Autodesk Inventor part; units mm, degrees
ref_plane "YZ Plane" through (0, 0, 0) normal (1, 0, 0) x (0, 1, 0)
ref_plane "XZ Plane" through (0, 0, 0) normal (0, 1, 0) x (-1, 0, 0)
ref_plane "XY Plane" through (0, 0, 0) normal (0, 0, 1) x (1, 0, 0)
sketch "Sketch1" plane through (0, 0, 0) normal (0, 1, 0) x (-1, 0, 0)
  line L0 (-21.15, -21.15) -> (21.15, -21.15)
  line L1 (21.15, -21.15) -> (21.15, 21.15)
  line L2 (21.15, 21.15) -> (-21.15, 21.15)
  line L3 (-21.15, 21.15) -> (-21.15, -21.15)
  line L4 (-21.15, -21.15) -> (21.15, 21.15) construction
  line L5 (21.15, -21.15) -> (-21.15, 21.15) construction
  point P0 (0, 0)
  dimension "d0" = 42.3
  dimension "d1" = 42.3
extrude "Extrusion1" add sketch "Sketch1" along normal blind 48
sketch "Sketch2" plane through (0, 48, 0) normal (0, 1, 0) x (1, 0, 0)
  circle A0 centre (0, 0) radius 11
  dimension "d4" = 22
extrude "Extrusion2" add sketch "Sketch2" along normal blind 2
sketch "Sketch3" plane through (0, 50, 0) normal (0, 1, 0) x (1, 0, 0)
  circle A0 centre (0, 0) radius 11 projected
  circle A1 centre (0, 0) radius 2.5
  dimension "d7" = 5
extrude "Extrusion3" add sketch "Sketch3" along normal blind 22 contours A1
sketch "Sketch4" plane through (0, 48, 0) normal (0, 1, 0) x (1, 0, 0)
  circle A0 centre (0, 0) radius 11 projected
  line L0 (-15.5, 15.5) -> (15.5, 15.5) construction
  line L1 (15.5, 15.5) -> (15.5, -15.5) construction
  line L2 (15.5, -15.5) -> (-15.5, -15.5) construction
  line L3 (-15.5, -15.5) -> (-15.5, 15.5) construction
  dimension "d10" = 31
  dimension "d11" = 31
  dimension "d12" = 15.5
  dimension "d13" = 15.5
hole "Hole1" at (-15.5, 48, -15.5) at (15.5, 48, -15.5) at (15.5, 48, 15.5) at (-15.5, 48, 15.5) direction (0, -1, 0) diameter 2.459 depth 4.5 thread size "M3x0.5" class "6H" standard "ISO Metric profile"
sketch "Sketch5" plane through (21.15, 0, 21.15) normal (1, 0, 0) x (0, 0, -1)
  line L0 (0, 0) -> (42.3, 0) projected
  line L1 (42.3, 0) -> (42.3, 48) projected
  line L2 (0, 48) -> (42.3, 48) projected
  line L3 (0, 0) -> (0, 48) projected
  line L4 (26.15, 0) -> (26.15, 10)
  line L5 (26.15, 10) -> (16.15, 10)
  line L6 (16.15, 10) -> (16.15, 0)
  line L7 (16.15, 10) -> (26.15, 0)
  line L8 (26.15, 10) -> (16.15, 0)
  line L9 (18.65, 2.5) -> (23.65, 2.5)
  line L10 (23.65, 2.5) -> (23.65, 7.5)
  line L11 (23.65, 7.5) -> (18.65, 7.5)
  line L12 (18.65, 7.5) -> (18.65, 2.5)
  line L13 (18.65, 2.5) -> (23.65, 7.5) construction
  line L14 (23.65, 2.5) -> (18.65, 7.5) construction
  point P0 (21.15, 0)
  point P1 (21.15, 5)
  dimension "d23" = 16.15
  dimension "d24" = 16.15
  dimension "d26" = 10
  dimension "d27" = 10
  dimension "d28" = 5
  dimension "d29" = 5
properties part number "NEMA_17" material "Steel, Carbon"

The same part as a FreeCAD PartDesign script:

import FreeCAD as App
import Part
import Sketcher
from FreeCAD import Vector

doc = App.newDocument("Part")
body = doc.addObject("PartDesign::Body", "Body")

# Sketch on XZ plane
sketch1 = body.newObject("Sketcher::SketchObject", "Sketch")
sketch1.AttachmentSupport = (doc.getObject("XZ_Plane"), [""])
sketch1.MapMode = "FlatFace"
sketch1.addGeometry([
    Part.LineSegment(Vector(21, 21, 0), Vector(21, -21, 0)),
    Part.LineSegment(Vector(21, -21, 0), Vector(-21, -21, 0)),
    Part.LineSegment(Vector(-21, -21, 0), Vector(-21, 21, 0)),
    Part.LineSegment(Vector(-21, 21, 0), Vector(21, 21, 0)),
], False)
sketch1.addConstraint([
    Sketcher.Constraint("Coincident", 0, 2, 1, 1),
    Sketcher.Constraint("Coincident", 1, 2, 2, 1),
    Sketcher.Constraint("Coincident", 2, 2, 3, 1),
    Sketcher.Constraint("Coincident", 3, 2, 0, 1),
    Sketcher.Constraint("Vertical", 0),
    Sketcher.Constraint("Horizontal", 1),
    Sketcher.Constraint("Vertical", 2),
    Sketcher.Constraint("Horizontal", 3),
    Sketcher.Constraint("Symmetric", 0, 2, 2, 2, -1, 1),
    Sketcher.Constraint("Equal", 3, 0),
    Sketcher.Constraint("DistanceX", 1, 2, 1, 1, 42.3),
])
pad1 = body.newObject("PartDesign::Pad", "Pad")
pad1.Profile = sketch1
pad1.Length = 48
pad1.Reversed = True

# Sketch on XZ plane
sketch2 = body.newObject("Sketcher::SketchObject", "Sketch001")
sketch2.AttachmentSupport = (doc.getObject("XZ_Plane"), [""])
sketch2.MapMode = "FlatFace"
sketch2.AttachmentOffset = App.Placement(Vector(0, 0, -48), App.Rotation())
sketch2.addGeometry(Part.Circle(Vector(0, 0, 0), Vector(0, 0, 1), 11), False)
sketch2.addConstraint([
    Sketcher.Constraint("Coincident", 0, 3, -1, 1),
    Sketcher.Constraint("Diameter", 0, 22.0),
])
pad2 = body.newObject("PartDesign::Pad", "Pad001")
pad2.Profile = sketch2
pad2.Length = 2
pad2.Reversed = True

# Sketch on XZ plane
sketch3 = body.newObject("Sketcher::SketchObject", "Sketch002")
sketch3.AttachmentSupport = (doc.getObject("XZ_Plane"), [""])
sketch3.MapMode = "FlatFace"
sketch3.AttachmentOffset = App.Placement(Vector(0, 0, -50), App.Rotation())
sketch3.addGeometry(Part.Circle(Vector(0, 0, 0), Vector(0, 0, 1), 2.5), False)
sketch3.addConstraint([
    Sketcher.Constraint("Coincident", 0, 3, -1, 1),
    Sketcher.Constraint("Diameter", 0, 5.0),
])
pad3 = body.newObject("PartDesign::Pad", "Pad002")
pad3.Profile = sketch3
pad3.Length = 22
pad3.Reversed = True

# Sketch on XZ plane
sketch4 = body.newObject("Sketcher::SketchObject", "Sketch003")
sketch4.AttachmentSupport = (doc.getObject("XZ_Plane"), [""])
sketch4.MapMode = "FlatFace"
sketch4.AttachmentOffset = App.Placement(Vector(0, 0, -48), App.Rotation())
sketch4.addGeometry([
    Part.Circle(Vector(-15.5, -15.5, 0), Vector(0, 0, 1), 1.2),
    Part.Circle(Vector(15.5, -15.5, 0), Vector(0, 0, 1), 1.2),
    Part.Circle(Vector(15.5, 15.5, 0), Vector(0, 0, 1), 1.2),
    Part.Circle(Vector(-15.5, 15.5, 0), Vector(0, 0, 1), 1.2),
], False)
sketch4.addConstraint([
    Sketcher.Constraint("Equal", 0, 1),
    Sketcher.Constraint("Equal", 1, 2),
    Sketcher.Constraint("Equal", 2, 3),
    Sketcher.Constraint("Symmetric", 0, 3, 2, 3, -1, 1),
    Sketcher.Constraint("Symmetric", 1, 3, 3, 3, -1, 1),
    Sketcher.Constraint("Symmetric", 0, 3, 1, 3, -2),
    Sketcher.Constraint("Diameter", 0, 2.459),
    Sketcher.Constraint("DistanceX", 0, 3, 1, 3, 31.0),
    Sketcher.Constraint("DistanceY", 1, 3, 2, 3, 31.0),
])
doc.recompute()
hole = body.newObject("PartDesign::Hole", "Hole")
hole.Profile = sketch4
hole.ThreadType = "None"
hole.Diameter = 2.459
hole.DepthType = "Dimension"
hole.Depth = 4.5
hole.DrillPoint = "Flat"
hole.Reversed = True

doc.recompute()
